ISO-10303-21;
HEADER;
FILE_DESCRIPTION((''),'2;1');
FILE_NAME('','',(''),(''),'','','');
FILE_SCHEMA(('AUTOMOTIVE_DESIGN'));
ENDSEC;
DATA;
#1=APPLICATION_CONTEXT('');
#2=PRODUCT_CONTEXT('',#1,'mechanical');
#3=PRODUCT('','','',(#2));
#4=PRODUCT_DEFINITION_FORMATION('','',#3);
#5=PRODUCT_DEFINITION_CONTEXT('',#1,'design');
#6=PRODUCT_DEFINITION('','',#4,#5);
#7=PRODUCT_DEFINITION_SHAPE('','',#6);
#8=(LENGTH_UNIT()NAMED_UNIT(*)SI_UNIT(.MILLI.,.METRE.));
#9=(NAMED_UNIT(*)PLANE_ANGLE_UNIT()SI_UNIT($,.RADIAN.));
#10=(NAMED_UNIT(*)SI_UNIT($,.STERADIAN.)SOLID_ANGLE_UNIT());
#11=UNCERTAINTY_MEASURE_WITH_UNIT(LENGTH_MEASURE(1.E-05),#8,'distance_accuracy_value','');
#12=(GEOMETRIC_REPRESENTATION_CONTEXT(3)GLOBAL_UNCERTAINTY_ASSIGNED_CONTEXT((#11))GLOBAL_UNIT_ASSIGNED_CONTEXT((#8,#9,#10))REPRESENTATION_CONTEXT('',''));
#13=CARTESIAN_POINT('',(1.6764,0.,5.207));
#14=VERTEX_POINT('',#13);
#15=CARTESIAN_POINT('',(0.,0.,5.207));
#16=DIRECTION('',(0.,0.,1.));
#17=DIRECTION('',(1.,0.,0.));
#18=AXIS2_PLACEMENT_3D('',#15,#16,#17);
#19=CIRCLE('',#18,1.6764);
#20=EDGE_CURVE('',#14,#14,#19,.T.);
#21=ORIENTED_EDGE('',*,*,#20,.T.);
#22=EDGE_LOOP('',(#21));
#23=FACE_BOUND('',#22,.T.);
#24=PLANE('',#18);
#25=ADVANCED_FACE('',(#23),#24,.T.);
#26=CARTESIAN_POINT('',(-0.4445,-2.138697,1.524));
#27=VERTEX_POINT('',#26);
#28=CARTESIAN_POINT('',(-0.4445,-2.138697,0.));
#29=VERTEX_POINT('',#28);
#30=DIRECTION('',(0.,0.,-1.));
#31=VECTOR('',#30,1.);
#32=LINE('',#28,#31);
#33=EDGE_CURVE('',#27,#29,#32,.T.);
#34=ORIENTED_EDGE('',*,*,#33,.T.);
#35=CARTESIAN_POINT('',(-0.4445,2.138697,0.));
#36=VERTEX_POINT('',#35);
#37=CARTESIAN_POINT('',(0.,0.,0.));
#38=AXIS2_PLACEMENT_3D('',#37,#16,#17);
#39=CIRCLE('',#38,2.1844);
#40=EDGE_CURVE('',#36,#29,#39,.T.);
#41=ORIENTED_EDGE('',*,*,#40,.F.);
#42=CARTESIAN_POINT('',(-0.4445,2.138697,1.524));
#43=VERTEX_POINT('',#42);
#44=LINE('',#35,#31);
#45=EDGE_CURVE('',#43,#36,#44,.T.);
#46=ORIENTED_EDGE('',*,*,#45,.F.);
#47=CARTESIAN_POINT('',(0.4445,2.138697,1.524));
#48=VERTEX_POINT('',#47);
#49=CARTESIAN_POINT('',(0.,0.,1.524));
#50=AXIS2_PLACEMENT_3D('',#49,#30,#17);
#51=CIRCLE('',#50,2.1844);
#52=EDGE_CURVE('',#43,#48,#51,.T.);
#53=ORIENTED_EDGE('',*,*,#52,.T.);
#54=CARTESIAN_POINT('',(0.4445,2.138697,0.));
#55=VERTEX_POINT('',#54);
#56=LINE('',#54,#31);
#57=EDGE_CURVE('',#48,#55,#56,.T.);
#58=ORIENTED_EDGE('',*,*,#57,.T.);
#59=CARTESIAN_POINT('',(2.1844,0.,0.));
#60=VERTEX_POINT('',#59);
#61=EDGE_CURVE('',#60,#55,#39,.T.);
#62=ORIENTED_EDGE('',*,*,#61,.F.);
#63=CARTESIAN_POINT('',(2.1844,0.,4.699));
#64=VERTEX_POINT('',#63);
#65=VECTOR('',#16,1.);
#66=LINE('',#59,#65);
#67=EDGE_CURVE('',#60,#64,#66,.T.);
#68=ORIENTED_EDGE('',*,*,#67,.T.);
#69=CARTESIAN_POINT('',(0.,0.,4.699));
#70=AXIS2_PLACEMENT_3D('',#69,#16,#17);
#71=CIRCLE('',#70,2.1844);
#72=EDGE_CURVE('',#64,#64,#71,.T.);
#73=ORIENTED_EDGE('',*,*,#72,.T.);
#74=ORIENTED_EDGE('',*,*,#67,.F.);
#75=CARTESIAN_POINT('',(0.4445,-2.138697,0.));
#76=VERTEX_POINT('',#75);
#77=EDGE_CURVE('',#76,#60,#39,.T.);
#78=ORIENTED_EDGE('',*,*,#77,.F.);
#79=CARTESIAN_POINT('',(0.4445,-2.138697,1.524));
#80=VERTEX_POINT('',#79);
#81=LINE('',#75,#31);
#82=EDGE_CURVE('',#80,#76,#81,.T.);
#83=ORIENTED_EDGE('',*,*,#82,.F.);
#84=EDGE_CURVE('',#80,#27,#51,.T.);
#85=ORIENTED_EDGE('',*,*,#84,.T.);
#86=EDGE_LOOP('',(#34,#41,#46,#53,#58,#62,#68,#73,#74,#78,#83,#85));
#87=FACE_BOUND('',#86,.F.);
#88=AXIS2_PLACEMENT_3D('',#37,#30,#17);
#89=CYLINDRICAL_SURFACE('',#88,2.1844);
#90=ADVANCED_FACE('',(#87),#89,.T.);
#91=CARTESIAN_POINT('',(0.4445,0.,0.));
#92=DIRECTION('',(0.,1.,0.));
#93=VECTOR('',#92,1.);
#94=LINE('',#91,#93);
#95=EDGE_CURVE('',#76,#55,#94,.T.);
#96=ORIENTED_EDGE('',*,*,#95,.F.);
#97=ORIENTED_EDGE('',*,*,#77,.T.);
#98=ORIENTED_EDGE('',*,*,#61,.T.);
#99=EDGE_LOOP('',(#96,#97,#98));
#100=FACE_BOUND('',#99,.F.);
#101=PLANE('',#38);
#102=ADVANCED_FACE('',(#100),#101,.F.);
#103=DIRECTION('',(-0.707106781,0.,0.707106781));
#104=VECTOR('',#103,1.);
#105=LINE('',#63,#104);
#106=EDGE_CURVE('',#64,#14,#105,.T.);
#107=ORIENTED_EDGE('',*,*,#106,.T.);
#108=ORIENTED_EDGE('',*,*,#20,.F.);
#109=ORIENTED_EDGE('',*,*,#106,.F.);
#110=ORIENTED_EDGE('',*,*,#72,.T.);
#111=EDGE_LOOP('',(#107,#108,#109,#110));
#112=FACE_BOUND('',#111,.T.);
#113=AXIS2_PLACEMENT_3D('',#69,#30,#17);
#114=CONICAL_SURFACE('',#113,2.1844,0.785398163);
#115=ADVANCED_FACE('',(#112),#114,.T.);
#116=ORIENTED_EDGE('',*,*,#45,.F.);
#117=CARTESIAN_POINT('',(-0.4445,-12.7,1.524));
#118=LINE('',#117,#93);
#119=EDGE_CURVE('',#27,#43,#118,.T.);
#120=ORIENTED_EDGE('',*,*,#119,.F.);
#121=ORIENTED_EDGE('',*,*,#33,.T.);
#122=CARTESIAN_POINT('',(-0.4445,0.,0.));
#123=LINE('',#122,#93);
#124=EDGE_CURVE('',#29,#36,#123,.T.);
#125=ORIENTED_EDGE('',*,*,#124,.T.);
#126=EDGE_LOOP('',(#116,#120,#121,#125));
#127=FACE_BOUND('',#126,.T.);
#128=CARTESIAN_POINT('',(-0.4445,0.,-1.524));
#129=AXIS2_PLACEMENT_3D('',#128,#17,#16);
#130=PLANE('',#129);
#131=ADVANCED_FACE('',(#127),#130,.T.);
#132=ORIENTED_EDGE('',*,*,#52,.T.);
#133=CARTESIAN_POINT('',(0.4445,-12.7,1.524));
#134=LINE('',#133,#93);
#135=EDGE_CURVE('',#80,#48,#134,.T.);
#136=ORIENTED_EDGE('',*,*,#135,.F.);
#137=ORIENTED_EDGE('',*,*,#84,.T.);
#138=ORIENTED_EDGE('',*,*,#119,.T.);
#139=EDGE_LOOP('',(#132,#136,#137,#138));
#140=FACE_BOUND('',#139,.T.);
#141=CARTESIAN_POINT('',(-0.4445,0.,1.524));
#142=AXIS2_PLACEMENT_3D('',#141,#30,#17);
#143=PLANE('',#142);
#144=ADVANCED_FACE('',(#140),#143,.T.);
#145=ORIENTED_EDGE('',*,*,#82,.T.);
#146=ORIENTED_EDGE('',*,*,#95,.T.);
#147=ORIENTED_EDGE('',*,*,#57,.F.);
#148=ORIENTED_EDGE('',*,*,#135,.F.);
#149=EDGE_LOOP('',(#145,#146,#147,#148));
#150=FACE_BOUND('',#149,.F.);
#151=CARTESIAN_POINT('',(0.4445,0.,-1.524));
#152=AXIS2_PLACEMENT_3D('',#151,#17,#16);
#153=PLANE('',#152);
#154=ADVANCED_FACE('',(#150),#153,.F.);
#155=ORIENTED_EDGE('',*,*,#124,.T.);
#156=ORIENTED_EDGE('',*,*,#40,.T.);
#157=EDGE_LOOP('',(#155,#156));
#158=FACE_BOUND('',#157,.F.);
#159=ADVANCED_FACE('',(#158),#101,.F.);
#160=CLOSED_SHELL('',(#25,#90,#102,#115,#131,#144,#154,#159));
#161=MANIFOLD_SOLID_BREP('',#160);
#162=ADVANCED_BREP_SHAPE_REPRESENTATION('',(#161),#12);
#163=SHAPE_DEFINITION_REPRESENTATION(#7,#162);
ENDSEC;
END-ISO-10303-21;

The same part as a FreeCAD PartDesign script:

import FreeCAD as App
import Part
import Sketcher
from FreeCAD import Vector
Q = App.Units.Quantity


def edges_at(feature, points):
    """Names of the edges that pass closest to the given points."""
    edges = feature.Shape.Edges
    near = lambda p: min(range(len(edges)), key=lambda i: edges[i].distToShape(Part.Vertex(*p))[0])
    return sorted({f"Edge{near(p) + 1}" for p in points})

doc = App.newDocument("Part")
body = doc.addObject("PartDesign::Body", "Body")

# Sketch on XY plane
sketch1 = body.newObject("Sketcher::SketchObject", "Sketch")
sketch1.AttachmentSupport = (doc.getObject("XY_Plane"), [""])
sketch1.MapMode = "FlatFace"
sketch1.addGeometry(Part.Circle(Vector(0, 0, 0), Vector(0, 0, 1), 2.1844), False)
sketch1.addConstraint([
    Sketcher.Constraint("Coincident", 0, 3, -1, 1),
    Sketcher.Constraint("Diameter", 0, Q("0.172 in")),
])
pad1 = body.newObject("PartDesign::Pad", "Pad")
pad1.Profile = sketch1
pad1.Length = Q("0.205 in")

# Sketch on XZ plane
sketch2 = body.newObject("Sketcher::SketchObject", "Sketch001")
sketch2.AttachmentSupport = (doc.getObject("XZ_Plane"), [""])
sketch2.MapMode = "FlatFace"
sketch2.addGeometry([
    Part.LineSegment(Vector(-0.4445, 1.524, 0), Vector(-0.4445, -1.524, 0)),
    Part.LineSegment(Vector(-0.4445, -1.524, 0), Vector(0.4445, -1.524, 0)),
    Part.LineSegment(Vector(0.4445, -1.524, 0), Vector(0.4445, 1.524, 0)),
    Part.LineSegment(Vector(0.4445, 1.524, 0), Vector(-0.4445, 1.524, 0)),
], False)
sketch2.addConstraint([
    Sketcher.Constraint("Coincident", 0, 2, 1, 1),
    Sketcher.Constraint("Coincident", 1, 2, 2, 1),
    Sketcher.Constraint("Coincident", 2, 2, 3, 1),
    Sketcher.Constraint("Coincident", 3, 2, 0, 1),
    Sketcher.Constraint("Vertical", 0),
    Sketcher.Constraint("Horizontal", 1),
    Sketcher.Constraint("Vertical", 2),
    Sketcher.Constraint("Horizontal", 3),
    Sketcher.Constraint("Symmetric", 0, 2, 2, 2, -1, 1),
    Sketcher.Constraint("DistanceY", 0, 2, 0, 1, Q("0.12 in")),
    Sketcher.Constraint("DistanceX", 1, 1, 1, 2, Q("0.035 in")),
])
pocket1 = body.newObject("PartDesign::Pocket", "Pocket")
pocket1.Profile = sketch2
pocket1.Length = Q("1 in")
pocket1.Midplane = True
doc.recompute()

chamfer = body.newObject("PartDesign::Chamfer", "Chamfer")
chamfer.Base = (pocket1, edges_at(pocket1, [(-2.184, 0, 5.207)]))
chamfer.Size = Q("0.02 in")

doc.recompute()
